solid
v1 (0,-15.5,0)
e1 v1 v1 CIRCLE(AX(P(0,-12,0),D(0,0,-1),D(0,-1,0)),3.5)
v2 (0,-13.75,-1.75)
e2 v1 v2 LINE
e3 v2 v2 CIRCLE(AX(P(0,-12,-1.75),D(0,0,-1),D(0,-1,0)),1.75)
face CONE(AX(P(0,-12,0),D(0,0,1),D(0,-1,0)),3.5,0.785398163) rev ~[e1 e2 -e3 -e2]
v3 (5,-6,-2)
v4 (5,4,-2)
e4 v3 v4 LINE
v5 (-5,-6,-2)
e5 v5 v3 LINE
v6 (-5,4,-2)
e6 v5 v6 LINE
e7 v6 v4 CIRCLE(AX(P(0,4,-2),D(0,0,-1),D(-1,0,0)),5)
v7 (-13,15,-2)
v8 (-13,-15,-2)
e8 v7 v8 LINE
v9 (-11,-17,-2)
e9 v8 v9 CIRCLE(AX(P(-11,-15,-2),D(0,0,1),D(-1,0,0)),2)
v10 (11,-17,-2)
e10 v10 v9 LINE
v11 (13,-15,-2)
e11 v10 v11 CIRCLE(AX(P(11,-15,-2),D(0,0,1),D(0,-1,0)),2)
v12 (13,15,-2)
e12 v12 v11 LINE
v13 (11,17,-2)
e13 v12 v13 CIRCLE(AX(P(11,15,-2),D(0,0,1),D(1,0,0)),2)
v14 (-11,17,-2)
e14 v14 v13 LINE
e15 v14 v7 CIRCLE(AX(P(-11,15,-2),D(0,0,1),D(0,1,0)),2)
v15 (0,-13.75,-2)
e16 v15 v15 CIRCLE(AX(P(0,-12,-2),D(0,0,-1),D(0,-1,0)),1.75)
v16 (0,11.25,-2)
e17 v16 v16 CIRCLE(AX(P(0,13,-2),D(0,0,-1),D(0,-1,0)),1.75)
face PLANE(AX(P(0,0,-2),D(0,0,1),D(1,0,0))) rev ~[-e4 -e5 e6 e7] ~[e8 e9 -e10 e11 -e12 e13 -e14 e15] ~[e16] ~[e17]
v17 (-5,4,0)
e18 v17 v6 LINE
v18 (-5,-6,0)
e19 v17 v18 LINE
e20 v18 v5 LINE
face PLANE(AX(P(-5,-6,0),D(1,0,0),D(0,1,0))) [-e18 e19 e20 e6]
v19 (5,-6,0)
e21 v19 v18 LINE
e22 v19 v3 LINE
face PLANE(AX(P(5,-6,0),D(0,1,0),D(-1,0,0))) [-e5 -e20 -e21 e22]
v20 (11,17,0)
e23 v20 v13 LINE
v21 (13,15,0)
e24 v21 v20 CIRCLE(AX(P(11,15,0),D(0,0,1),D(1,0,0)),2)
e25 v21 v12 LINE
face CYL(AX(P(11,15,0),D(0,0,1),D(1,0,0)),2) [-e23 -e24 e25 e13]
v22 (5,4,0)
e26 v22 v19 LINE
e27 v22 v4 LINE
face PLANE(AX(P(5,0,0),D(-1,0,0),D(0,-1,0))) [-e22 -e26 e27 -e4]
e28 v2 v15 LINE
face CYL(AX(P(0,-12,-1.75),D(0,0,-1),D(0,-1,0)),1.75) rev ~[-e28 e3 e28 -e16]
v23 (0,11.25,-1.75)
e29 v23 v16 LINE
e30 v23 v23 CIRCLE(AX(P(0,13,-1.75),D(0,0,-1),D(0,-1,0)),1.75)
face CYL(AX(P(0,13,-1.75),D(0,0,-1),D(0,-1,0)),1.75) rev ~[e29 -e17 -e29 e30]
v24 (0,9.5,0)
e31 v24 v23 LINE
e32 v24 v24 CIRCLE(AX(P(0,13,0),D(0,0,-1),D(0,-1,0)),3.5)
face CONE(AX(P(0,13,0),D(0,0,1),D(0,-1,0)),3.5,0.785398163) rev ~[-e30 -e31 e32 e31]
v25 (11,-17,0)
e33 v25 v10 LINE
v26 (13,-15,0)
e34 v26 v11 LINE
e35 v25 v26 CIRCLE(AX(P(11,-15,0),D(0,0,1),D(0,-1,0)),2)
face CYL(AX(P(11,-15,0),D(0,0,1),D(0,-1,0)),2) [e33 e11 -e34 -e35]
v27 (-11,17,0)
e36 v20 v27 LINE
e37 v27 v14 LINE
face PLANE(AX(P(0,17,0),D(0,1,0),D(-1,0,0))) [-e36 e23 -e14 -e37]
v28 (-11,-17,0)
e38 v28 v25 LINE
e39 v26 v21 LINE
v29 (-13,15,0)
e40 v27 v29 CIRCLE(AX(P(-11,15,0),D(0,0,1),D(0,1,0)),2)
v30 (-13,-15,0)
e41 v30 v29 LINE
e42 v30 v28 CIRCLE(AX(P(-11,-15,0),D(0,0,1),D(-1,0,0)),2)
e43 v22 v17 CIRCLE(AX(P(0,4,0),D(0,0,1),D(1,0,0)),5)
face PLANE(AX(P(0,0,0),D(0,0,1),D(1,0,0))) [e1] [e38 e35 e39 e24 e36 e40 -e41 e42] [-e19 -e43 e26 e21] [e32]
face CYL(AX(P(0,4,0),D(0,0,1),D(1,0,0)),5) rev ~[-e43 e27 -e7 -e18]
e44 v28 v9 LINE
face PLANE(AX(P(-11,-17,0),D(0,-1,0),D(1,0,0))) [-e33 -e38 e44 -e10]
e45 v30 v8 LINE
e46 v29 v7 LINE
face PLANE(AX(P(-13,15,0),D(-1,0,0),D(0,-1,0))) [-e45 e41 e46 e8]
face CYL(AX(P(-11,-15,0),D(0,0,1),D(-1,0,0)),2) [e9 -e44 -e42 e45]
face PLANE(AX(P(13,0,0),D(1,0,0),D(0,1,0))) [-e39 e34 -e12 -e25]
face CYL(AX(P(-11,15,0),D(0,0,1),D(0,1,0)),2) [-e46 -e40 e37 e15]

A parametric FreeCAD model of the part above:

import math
import FreeCAD as App
import Part
import Sketcher

doc = App.newDocument("Part")
body = doc.addObject("PartDesign::Body", "Body")

sketch1 = body.newObject("Sketcher::SketchObject", "Sketch")
sketch1.AttachmentSupport = (doc.getObject("XY_Plane"), [""])
sketch1.MapMode = "FlatFace"
sketch1.addGeometry([
    Part.LineSegment(App.Vector(-13, 15, 0), App.Vector(-13, -15, 0)),
    Part.ArcOfCircle(Part.Circle(App.Vector(-11, -15, 0), App.Vector(0, 0, 1), 2), math.radians(180), math.radians(270)),
    Part.LineSegment(App.Vector(-11, -17, 0), App.Vector(11, -17, 0)),
    Part.ArcOfCircle(Part.Circle(App.Vector(11, -15, 0), App.Vector(0, 0, 1), 2), math.radians(-90), math.radians(0)),
    Part.LineSegment(App.Vector(13, -15, 0), App.Vector(13, 15, 0)),
    Part.ArcOfCircle(Part.Circle(App.Vector(11, 15, 0), App.Vector(0, 0, 1), 2), math.radians(0), math.radians(90)),
    Part.LineSegment(App.Vector(11, 17, 0), App.Vector(-11, 17, 0)),
    Part.ArcOfCircle(Part.Circle(App.Vector(-11, 15, 0), App.Vector(0, 0, 1), 2), math.radians(90), math.radians(180)),
], False)
sketch1.addConstraint([
    Sketcher.Constraint("Tangent", 0, 2, 1, 1),
    Sketcher.Constraint("Tangent", 1, 2, 2, 1),
    Sketcher.Constraint("Tangent", 2, 2, 3, 1),
    Sketcher.Constraint("Tangent", 3, 2, 4, 1),
    Sketcher.Constraint("Tangent", 4, 2, 5, 1),
    Sketcher.Constraint("Tangent", 5, 2, 6, 1),
    Sketcher.Constraint("Tangent", 6, 2, 7, 1),
    Sketcher.Constraint("Tangent", 7, 2, 0, 1),
    Sketcher.Constraint("Vertical", 0),
    Sketcher.Constraint("Horizontal", 2),
    Sketcher.Constraint("Vertical", 4),
    Sketcher.Constraint("Horizontal", 6),
    Sketcher.Constraint("Equal", 1, 3),
    Sketcher.Constraint("Equal", 3, 5),
    Sketcher.Constraint("Equal", 5, 7),
    Sketcher.Constraint("Symmetric", 1, 3, 5, 3, -1, 1),
    Sketcher.Constraint("Radius", 1, 2.0),
    Sketcher.Constraint("DistanceX", 0, 2, 3, 2, 26.0),
    Sketcher.Constraint("DistanceY", 0, 2, 0, 1, 30.0),
])
pad1 = body.newObject("PartDesign::Pad", "Pad")
pad1.Profile = sketch1
pad1.Length = 2
pad1.Reversed = True

sketch2 = body.newObject("Sketcher::SketchObject", "Sketch001")
sketch2.AttachmentSupport = (doc.getObject("XY_Plane"), [""])
sketch2.MapMode = "FlatFace"
sketch2.addGeometry([
    Part.LineSegment(App.Vector(5, -6, 0), App.Vector(5, 4, 0)),
    Part.ArcOfCircle(Part.Circle(App.Vector(0, 4, 0), App.Vector(0, 0, 1), 5), math.radians(0), math.radians(180)),
    Part.LineSegment(App.Vector(-5, 4, 0), App.Vector(-5, -6, 0)),
    Part.LineSegment(App.Vector(-5, -6, 0), App.Vector(5, -6, 0)),
], False)
sketch2.addConstraint([
    Sketcher.Constraint("Tangent", 0, 2, 1, 1),
    Sketcher.Constraint("Tangent", 1, 2, 2, 1),
    Sketcher.Constraint("Coincident", 2, 2, 3, 1),
    Sketcher.Constraint("Coincident", 3, 2, 0, 1),
    Sketcher.Constraint("Vertical", 0),
    Sketcher.Constraint("Vertical", 2),
    Sketcher.Constraint("Horizontal", 3),
    Sketcher.Constraint("PointOnObject", 1, 3, -2),
    Sketcher.Constraint("Equal", 3, 0),
    Sketcher.Constraint("Radius", 1, 5.0),
    Sketcher.Constraint("DistanceY", -1, 1, 1, 3, 4.0),
])
pocket1 = body.newObject("PartDesign::Pocket", "Pocket")
pocket1.Profile = sketch2
pocket1.Length = 2

sketch3 = body.newObject("Sketcher::SketchObject", "Sketch002")
sketch3.AttachmentSupport = (doc.getObject("XY_Plane"), [""])
sketch3.MapMode = "FlatFace"
sketch3.addGeometry([
    Part.Circle(App.Vector(0, -12, 0), App.Vector(0, 0, 1), 1.75),
    Part.Circle(App.Vector(0, 13, 0), App.Vector(0, 0, 1), 1.75),
], False)
sketch3.addConstraint([
    Sketcher.Constraint("Equal", 0, 1),
    Sketcher.Constraint("PointOnObject", 0, 3, -2),
    Sketcher.Constraint("PointOnObject", 1, 3, -2),
    Sketcher.Constraint("Diameter", 0, 3.5),
    Sketcher.Constraint("DistanceY", 0, 3, -1, 1, 12.0),
    Sketcher.Constraint("DistanceY", -1, 1, 1, 3, 13.0),
])
doc.recompute()
hole = body.newObject("PartDesign::Hole", "Hole")
hole.Profile = sketch3
hole.ThreadType = "None"
hole.Diameter = 3.5
hole.DepthType = "ThroughAll"
hole.HoleCutType = "Countersink"
hole.HoleCutDiameter = 7
hole.HoleCutCountersinkAngle = 90

doc.recompute()
